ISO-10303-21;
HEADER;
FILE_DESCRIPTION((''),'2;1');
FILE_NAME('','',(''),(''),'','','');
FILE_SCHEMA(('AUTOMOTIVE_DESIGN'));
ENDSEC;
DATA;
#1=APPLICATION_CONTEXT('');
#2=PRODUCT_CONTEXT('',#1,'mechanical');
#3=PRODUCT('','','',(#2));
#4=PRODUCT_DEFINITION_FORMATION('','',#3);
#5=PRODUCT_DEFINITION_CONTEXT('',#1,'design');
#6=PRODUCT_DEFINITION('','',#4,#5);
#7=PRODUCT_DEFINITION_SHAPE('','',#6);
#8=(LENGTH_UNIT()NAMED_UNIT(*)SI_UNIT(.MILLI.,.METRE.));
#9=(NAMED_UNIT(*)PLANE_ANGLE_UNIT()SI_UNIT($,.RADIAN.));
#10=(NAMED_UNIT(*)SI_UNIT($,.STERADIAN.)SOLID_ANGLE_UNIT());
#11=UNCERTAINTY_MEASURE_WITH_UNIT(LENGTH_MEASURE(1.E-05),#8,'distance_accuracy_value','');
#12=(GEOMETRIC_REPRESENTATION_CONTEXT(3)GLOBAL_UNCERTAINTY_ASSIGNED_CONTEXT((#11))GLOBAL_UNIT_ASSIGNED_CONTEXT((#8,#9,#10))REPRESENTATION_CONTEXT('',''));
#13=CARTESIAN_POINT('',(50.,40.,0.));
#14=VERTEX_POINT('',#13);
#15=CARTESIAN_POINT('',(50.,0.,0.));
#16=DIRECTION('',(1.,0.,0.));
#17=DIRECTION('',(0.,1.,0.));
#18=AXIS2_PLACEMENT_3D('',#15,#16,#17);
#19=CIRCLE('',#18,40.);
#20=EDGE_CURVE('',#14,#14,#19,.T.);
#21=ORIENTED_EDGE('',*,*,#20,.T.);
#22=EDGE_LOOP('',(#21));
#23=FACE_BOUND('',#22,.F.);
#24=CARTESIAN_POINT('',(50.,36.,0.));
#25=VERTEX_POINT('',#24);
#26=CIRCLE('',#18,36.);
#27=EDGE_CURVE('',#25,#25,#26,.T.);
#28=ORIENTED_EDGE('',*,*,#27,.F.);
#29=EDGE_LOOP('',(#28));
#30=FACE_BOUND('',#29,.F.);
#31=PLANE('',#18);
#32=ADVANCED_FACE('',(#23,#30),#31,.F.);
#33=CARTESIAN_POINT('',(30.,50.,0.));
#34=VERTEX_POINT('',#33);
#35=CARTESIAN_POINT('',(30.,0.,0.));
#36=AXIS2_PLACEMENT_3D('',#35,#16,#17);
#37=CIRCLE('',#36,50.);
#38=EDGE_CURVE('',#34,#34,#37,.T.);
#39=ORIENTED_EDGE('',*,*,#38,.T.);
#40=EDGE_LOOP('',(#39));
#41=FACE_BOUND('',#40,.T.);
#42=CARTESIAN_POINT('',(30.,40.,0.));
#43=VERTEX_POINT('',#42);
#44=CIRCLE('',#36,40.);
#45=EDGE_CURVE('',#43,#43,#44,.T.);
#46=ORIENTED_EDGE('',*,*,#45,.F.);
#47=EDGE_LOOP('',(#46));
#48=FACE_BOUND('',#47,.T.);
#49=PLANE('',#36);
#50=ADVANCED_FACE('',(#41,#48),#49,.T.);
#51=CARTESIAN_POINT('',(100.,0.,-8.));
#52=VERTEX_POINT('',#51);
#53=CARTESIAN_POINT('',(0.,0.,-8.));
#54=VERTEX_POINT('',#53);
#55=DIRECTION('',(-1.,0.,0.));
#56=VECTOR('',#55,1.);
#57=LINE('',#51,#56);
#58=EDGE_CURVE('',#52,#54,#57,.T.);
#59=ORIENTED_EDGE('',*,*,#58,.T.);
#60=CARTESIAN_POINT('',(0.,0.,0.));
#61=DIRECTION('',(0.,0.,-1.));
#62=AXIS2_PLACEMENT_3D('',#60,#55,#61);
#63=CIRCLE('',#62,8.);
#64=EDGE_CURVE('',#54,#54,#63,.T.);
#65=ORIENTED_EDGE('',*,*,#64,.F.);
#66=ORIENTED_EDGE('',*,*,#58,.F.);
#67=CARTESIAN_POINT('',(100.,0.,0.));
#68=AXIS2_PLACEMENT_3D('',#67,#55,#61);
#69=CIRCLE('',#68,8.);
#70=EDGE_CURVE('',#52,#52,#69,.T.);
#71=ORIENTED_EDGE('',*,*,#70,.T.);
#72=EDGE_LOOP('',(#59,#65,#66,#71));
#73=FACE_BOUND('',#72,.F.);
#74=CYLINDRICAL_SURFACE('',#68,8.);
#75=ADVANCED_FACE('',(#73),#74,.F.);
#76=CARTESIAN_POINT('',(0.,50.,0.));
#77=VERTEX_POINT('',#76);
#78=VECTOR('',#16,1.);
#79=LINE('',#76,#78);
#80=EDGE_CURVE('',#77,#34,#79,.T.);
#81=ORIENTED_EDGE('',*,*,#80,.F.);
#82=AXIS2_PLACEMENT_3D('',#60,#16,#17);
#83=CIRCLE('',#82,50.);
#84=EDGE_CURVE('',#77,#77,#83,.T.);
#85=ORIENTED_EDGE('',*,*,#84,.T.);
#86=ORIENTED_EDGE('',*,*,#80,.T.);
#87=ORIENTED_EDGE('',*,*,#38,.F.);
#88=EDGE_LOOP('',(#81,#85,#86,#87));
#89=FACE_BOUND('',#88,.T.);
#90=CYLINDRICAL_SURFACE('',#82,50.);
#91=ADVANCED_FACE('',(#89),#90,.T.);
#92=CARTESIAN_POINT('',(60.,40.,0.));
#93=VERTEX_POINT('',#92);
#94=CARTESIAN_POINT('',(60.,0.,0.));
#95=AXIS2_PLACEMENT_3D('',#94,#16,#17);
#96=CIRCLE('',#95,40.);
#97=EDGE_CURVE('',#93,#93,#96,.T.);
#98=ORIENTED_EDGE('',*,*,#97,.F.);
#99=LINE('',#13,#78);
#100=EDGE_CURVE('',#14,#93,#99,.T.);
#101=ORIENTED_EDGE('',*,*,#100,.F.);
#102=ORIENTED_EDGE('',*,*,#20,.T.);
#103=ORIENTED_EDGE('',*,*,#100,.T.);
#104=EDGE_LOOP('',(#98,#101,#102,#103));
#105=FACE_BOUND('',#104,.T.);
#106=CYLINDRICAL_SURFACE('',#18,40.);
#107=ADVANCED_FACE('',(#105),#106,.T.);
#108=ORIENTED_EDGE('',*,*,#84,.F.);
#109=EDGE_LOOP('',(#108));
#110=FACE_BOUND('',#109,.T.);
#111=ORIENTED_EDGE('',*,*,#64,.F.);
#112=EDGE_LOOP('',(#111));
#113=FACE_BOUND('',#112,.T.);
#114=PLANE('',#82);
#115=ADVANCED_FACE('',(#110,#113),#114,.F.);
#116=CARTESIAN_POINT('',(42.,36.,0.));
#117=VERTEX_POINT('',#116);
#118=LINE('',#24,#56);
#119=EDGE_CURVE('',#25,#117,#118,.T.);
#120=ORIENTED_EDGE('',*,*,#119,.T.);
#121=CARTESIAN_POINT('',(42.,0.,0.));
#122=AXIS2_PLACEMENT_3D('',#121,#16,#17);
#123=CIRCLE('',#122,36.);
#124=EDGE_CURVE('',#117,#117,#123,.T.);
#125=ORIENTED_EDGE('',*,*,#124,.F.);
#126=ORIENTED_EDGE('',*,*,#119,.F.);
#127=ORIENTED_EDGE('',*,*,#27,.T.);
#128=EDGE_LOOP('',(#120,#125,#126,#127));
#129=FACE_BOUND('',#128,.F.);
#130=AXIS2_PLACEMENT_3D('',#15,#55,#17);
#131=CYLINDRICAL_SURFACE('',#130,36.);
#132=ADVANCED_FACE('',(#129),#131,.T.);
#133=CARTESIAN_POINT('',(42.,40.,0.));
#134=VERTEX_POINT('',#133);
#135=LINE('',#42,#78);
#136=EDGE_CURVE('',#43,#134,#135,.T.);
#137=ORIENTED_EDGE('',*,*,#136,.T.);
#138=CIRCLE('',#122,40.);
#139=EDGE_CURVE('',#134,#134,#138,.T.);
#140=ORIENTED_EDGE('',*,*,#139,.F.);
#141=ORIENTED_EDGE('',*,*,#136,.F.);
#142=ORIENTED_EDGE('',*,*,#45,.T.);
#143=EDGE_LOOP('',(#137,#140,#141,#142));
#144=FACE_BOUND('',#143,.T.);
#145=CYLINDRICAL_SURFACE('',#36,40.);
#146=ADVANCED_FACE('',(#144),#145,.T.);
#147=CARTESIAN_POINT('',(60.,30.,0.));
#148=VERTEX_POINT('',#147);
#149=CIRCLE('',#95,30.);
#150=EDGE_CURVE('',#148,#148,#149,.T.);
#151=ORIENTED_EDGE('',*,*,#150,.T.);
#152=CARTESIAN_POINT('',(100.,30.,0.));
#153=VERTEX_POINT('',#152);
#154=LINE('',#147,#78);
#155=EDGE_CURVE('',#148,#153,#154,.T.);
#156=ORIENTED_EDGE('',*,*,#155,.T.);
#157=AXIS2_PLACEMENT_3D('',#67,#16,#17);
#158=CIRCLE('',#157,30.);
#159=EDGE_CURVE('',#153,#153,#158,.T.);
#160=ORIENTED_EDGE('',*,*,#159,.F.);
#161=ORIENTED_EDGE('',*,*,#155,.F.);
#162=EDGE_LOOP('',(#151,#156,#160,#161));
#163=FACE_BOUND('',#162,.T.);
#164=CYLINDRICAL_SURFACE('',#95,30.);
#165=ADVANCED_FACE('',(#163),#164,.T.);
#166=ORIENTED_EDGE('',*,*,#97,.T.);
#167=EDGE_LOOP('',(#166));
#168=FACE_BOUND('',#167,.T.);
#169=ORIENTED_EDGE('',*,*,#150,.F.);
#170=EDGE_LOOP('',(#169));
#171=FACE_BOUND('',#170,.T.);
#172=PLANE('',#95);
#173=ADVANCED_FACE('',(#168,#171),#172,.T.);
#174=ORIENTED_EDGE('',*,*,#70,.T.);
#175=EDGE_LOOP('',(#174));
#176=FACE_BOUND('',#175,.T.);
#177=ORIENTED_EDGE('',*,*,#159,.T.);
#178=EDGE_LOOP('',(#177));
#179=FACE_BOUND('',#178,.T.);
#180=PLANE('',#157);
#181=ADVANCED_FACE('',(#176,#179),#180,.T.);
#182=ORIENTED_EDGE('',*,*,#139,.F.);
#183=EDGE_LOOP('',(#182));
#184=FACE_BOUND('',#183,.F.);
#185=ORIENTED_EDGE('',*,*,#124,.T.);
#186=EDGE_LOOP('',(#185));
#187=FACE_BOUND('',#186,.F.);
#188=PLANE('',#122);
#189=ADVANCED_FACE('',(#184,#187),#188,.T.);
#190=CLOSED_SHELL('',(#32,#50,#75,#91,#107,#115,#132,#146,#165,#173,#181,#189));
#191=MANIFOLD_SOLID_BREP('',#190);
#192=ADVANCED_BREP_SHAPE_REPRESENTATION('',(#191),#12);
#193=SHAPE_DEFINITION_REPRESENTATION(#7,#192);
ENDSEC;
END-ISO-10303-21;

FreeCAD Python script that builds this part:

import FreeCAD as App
import Part
import Sketcher

V = App.Vector
Q = App.Units.Quantity


def add_polygon(sketch, points):
    """Adds a closed chain of lines whose ends are joined by coincident constraints."""
    first, n = sketch.GeometryCount, len(points)
    for a, b in zip(points, points[1:] + points[:1]):
        sketch.addGeometry(Part.LineSegment(App.Vector(*a, 0), App.Vector(*b, 0)), False)
    for i in range(n):
        sketch.addConstraint(Sketcher.Constraint("Coincident", first + i, 2, first + (i + 1) % n, 1))

doc = App.newDocument("Part")
params = doc.addObject("Spreadsheet::Sheet", "Params")
for row, (alias, value) in enumerate([
    ("sketch1_width", "100 mm"),
    ("sketch1_width2", "8 mm"),
    ("sketch1_height", "50 mm"),
    ("sketch1_height2", "4 mm"),
    ("sketch1_width3", "40 mm"),
    ("revolution_angle", "360 deg"),
    ("sketch2_diameter", "16 mm"),
    ("hole_diameter", "16 mm"),
], start=1):
    params.set(f"A{row}", alias)
    params.set(f"B{row}", "=" + value)
    params.setAlias(f"B{row}", alias)

body = doc.addObject("PartDesign::Body", "Body")

# Sketch on XY plane
sketch1 = doc.addObject("Sketcher::SketchObject", "Sketch")
body.addObject(sketch1)
sketch1.AttachmentSupport = (doc.XY_Plane, [""])
sketch1.MapMode = "FlatFace"
add_polygon(sketch1, [(0, 50), (0, 0), (100, 0), (100, 30), (60, 30), (60, 40), (50, 40), (50, 36), (42, 36), (42, 40), (30, 40), (30, 50)])  # lines 0-11
sketch1.addConstraint(Sketcher.Constraint("Vertical", 0))
sketch1.addConstraint(Sketcher.Constraint("Horizontal", 1))
sketch1.addConstraint(Sketcher.Constraint("Vertical", 2))
sketch1.addConstraint(Sketcher.Constraint("Horizontal", 3))
sketch1.addConstraint(Sketcher.Constraint("Vertical", 4))
sketch1.addConstraint(Sketcher.Constraint("Horizontal", 5))
sketch1.addConstraint(Sketcher.Constraint("Vertical", 6))
sketch1.addConstraint(Sketcher.Constraint("Horizontal", 7))
sketch1.addConstraint(Sketcher.Constraint("Vertical", 8))
sketch1.addConstraint(Sketcher.Constraint("Horizontal", 9))
sketch1.addConstraint(Sketcher.Constraint("Vertical", 10))
sketch1.addConstraint(Sketcher.Constraint("Horizontal", 11))
sketch1.addConstraint(Sketcher.Constraint("Coincident", 0, 2, -1, 1))
sketch1.addConstraint(Sketcher.Constraint("Horizontal", 5, 2, 8, 2))
sketch1.addConstraint(Sketcher.Constraint("Equal", 11, 2))
sketch1.addConstraint(Sketcher.Constraint("Equal", 5, 4))
sketch1.addConstraint(Sketcher.Constraint("Equal", 4, 10))
sketch1.addConstraint(Sketcher.Constraint("DistanceX", 1, 1, 1, 2, Q("100 mm")))
sketch1.addConstraint(Sketcher.Constraint("DistanceX", 7, 2, 7, 1, Q("8 mm")))
sketch1.addConstraint(Sketcher.Constraint("DistanceY", 0, 2, 0, 1, Q("50 mm")))
sketch1.addConstraint(Sketcher.Constraint("DistanceY", 6, 2, 6, 1, Q("4 mm")))
sketch1.addConstraint(Sketcher.Constraint("DistanceX", -1, 1, 5, 2, Q("50 mm")))
sketch1.addConstraint(Sketcher.Constraint("DistanceX", 3, 2, 3, 1, Q("40 mm")))
sketch1.setExpression("Constraints[29]", "Params.sketch1_width")
sketch1.setExpression("Constraints[30]", "Params.sketch1_width2")
sketch1.setExpression("Constraints[31]", "Params.sketch1_height")
sketch1.setExpression("Constraints[32]", "Params.sketch1_height2")
sketch1.setExpression("Constraints[34]", "Params.sketch1_width3")
revolution = doc.addObject("PartDesign::Revolution", "Revolution")
body.addObject(revolution)
revolution.Profile = sketch1
revolution.ReferenceAxis = (sketch1, ["H_Axis"])
revolution.setExpression("Angle", "Params.revolution_angle")

# Sketch on YZ plane
sketch2 = doc.addObject("Sketcher::SketchObject", "Sketch001")
body.addObject(sketch2)
sketch2.AttachmentSupport = (doc.YZ_Plane, [""])
sketch2.MapMode = "FlatFace"
sketch2.AttachmentOffset = App.Placement(V(0, 0, 100), App.Rotation())
sketch2.addGeometry(Part.Circle(V(0, 0, 0), V(0, 0, 1), 8), False)
sketch2.addConstraint(Sketcher.Constraint("Coincident", 0, 3, -1, 1))
sketch2.addConstraint(Sketcher.Constraint("Diameter", 0, Q("16 mm")))
sketch2.setExpression("Constraints[1]", "Params.sketch2_diameter")
doc.recompute()
hole = doc.addObject("PartDesign::Hole", "Hole")
body.addObject(hole)
hole.Profile = sketch2
hole.ThreadType = "None"
hole.setExpression("Diameter", "Params.hole_diameter")
hole.DepthType = "ThroughAll"

doc.recompute()
